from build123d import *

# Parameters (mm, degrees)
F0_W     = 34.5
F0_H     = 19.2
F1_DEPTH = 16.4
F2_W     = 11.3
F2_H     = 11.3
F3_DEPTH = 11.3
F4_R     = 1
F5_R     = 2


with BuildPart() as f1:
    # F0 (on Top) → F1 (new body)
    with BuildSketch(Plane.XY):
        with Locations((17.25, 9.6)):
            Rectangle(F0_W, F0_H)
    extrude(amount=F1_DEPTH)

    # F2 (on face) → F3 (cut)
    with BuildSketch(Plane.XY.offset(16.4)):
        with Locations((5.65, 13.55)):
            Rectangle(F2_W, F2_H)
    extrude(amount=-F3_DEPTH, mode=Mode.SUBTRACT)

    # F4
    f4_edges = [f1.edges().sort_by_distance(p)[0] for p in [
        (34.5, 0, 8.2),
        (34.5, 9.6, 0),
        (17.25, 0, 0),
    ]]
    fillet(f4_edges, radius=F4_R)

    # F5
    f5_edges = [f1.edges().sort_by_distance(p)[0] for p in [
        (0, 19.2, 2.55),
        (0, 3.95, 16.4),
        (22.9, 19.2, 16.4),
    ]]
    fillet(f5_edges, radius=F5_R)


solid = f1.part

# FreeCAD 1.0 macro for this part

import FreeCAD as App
import Part
import Sketcher
from FreeCAD import Vector


def edges_at(feature, points):
    """Names of the edges that pass closest to the given points."""
    edges = feature.Shape.Edges
    near = lambda p: min(range(len(edges)), key=lambda i: edges[i].distToShape(Part.Vertex(*p))[0])
    return sorted({f"Edge{near(p) + 1}" for p in points})


def add_polygon(sketch, points):
    """Adds a closed chain of lines whose ends are joined by coincident constraints."""
    first, n = sketch.GeometryCount, len(points)
    for a, b in zip(points, points[1:] + points[:1]):
        sketch.addGeometry(Part.LineSegment(App.Vector(*a, 0), App.Vector(*b, 0)), False)
    for i in range(n):
        sketch.addConstraint(Sketcher.Constraint("Coincident", first + i, 2, first + (i + 1) % n, 1))

doc = App.newDocument("Part")
body = doc.addObject("PartDesign::Body", "Body")

# Sketch on XY plane
sketch1 = doc.addObject("Sketcher::SketchObject", "Sketch")
body.addObject(sketch1)
sketch1.AttachmentSupport = (doc.XY_Plane, [""])
sketch1.MapMode = "FlatFace"
add_polygon(sketch1, [(0, 19), (0, 0), (34, 0), (34, 19)])  # lines 0-3
sketch1.addConstraint([
    Sketcher.Constraint("Vertical", 0),
    Sketcher.Constraint("Horizontal", 1),
    Sketcher.Constraint("Vertical", 2),
    Sketcher.Constraint("Horizontal", 3),
    Sketcher.Constraint("Coincident", 0, 2, -1, 1),
    Sketcher.Constraint("DistanceX", 1, 1, 1, 2, 34.5),
    Sketcher.Constraint("DistanceY", 0, 2, 0, 1, 19.2),
])
pad1 = doc.addObject("PartDesign::Pad", "Pad")
body.addObject(pad1)
pad1.Profile = sketch1
pad1.Length = 16.4

# Sketch on XY plane
sketch2 = doc.addObject("Sketcher::SketchObject", "Sketch001")
body.addObject(sketch2)
sketch2.AttachmentSupport = (doc.XY_Plane, [""])
sketch2.MapMode = "FlatFace"
sketch2.AttachmentOffset = App.Placement(Vector(0, 0, 16.4), App.Rotation())
add_polygon(sketch2, [(0, 19), (0, 8), (11, 8), (11, 19)])  # lines 0-3
sketch2.addConstraint([
    Sketcher.Constraint("Vertical", 0),
    Sketcher.Constraint("Horizontal", 1),
    Sketcher.Constraint("Vertical", 2),
    Sketcher.Constraint("Horizontal", 3),
    Sketcher.Constraint("PointOnObject", 0, 2, -2),
    Sketcher.Constraint("Equal", 3, 0),
    Sketcher.Constraint("DistanceX", 1, 1, 1, 2, 11.3),
    Sketcher.Constraint("DistanceY", -1, 1, 0, 2, 7.9),
])
pocket1 = doc.addObject("PartDesign::Pocket", "Pocket")
body.addObject(pocket1)
pocket1.Profile = sketch2
pocket1.Length = 11.3
doc.recompute()

fillet = doc.addObject("PartDesign::Fillet", "Fillet")
body.addObject(fillet)
fillet.Base = (pocket1, edges_at(pocket1, [(34.5, 0, 8.2), (34.5, 9.6, 0), (17.25, 0, 0)]))
fillet.Radius = 1
doc.recompute()

fillet2 = doc.addObject("PartDesign::Fillet", "Fillet001")
body.addObject(fillet2)
fillet2.Base = (fillet, edges_at(fillet, [(0, 19.2, 2.55), (0, 3.95, 16.4), (22.9, 19.2, 16.4)]))
fillet2.Radius = 2

doc.recompute()
